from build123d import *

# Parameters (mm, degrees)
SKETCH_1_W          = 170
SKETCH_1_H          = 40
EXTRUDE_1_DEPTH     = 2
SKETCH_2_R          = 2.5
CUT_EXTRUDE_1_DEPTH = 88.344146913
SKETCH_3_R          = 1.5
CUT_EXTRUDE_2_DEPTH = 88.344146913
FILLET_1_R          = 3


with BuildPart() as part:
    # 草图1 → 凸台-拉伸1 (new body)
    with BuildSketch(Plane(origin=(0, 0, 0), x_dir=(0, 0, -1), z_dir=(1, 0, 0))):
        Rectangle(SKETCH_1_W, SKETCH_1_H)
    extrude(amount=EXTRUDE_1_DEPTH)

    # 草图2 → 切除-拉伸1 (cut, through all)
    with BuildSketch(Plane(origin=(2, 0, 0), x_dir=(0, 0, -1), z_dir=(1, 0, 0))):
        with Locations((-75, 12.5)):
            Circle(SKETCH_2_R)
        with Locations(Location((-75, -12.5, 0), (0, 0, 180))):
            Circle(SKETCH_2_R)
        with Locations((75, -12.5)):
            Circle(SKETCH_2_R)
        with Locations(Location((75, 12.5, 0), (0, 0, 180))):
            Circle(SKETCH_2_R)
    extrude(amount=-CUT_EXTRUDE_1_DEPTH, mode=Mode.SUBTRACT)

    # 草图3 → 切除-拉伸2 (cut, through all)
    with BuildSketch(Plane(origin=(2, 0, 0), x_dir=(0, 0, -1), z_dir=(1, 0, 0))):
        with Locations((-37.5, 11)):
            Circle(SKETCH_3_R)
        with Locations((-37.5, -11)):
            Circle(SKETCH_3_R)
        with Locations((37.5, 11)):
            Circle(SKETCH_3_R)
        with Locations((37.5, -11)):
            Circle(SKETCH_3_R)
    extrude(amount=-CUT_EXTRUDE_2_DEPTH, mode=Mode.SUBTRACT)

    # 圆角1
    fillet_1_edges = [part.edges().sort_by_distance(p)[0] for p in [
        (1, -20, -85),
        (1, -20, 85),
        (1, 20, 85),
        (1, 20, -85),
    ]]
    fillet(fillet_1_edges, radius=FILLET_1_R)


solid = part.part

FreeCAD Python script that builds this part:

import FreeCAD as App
import Part
import Sketcher
Q = App.Units.Quantity


def edges_at(feature, points):
    """Names of the edges that pass closest to the given points."""
    edges = feature.Shape.Edges
    near = lambda p: min(range(len(edges)), key=lambda i: edges[i].distToShape(Part.Vertex(*p))[0])
    return sorted({f"Edge{near(p) + 1}" for p in points})


def add_polygon(sketch, points):
    """Adds a closed chain of lines whose ends are joined by coincident constraints."""
    first, n = sketch.GeometryCount, len(points)
    for a, b in zip(points, points[1:] + points[:1]):
        sketch.addGeometry(Part.LineSegment(App.Vector(*a, 0), App.Vector(*b, 0)), False)
    for i in range(n):
        sketch.addConstraint(Sketcher.Constraint("Coincident", first + i, 2, first + (i + 1) % n, 1))

doc = App.newDocument("Part")
body = doc.addObject("PartDesign::Body", "Body")

# Sketch on YZ plane
sketch1 = body.newObject("Sketcher::SketchObject", "Sketch")
sketch1.AttachmentSupport = (doc.getObject("YZ_Plane"), [""])
sketch1.MapMode = "FlatFace"
add_polygon(sketch1, [(20, 85), (-20, 85), (-20, -85), (20, -85)])  # lines 0-3
sketch1.addConstraint([
    Sketcher.Constraint("Horizontal", 0),
    Sketcher.Constraint("Vertical", 1),
    Sketcher.Constraint("Horizontal", 2),
    Sketcher.Constraint("Vertical", 3),
    Sketcher.Constraint("Symmetric", 0, 2, 2, 2, -1, 1),
    Sketcher.Constraint("DistanceX", 0, 2, 0, 1, Q("40 mm")),
    Sketcher.Constraint("DistanceY", 1, 2, 1, 1, Q("170 mm")),
])
pad1 = body.newObject("PartDesign::Pad", "Pad")
pad1.Profile = sketch1
pad1.Length = 2

# Sketch on YZ plane
sketch2 = body.newObject("Sketcher::SketchObject", "Sketch001")
sketch2.AttachmentSupport = (doc.getObject("YZ_Plane"), [""])
sketch2.MapMode = "FlatFace"
sketch2.AttachmentOffset = App.Placement(App.Vector(0, 0, 2), App.Rotation())
sketch2.addGeometry([
    Part.Circle(App.Vector(12.5, 75, 0), App.Vector(0, 0, 1), 2.5),
    Part.Circle(App.Vector(-12.5, 75, 0), App.Vector(0, 0, 1), 2.5),
    Part.Circle(App.Vector(-12.5, -75, 0), App.Vector(0, 0, 1), 2.5),
    Part.Circle(App.Vector(12.5, -75, 0), App.Vector(0, 0, 1), 2.5),
], False)
sketch2.addConstraint([
    Sketcher.Constraint("Equal", 0, 1),
    Sketcher.Constraint("Equal", 1, 2),
    Sketcher.Constraint("Equal", 2, 3),
    Sketcher.Constraint("Symmetric", 0, 3, 2, 3, -1, 1),
    Sketcher.Constraint("Symmetric", 1, 3, 3, 3, -1, 1),
    Sketcher.Constraint("Symmetric", 0, 3, 1, 3, -2),
    Sketcher.Constraint("Diameter", 0, Q("5 mm")),
    Sketcher.Constraint("DistanceY", -1, 1, 0, 3, Q("75 mm")),
    Sketcher.Constraint("DistanceX", 1, 3, 0, 3, Q("25 mm")),
])
pocket1 = body.newObject("PartDesign::Pocket", "Pocket")
pocket1.Profile = sketch2
pocket1.Type = "ThroughAll"

# Sketch on YZ plane
sketch3 = body.newObject("Sketcher::SketchObject", "Sketch002")
sketch3.AttachmentSupport = (doc.getObject("YZ_Plane"), [""])
sketch3.MapMode = "FlatFace"
sketch3.AttachmentOffset = App.Placement(App.Vector(0, 0, 2), App.Rotation())
sketch3.addGeometry([
    Part.Circle(App.Vector(11, 37.5, 0), App.Vector(0, 0, 1), 1.5),
    Part.Circle(App.Vector(-11, 37.5, 0), App.Vector(0, 0, 1), 1.5),
    Part.Circle(App.Vector(11, -37.5, 0), App.Vector(0, 0, 1), 1.5),
    Part.Circle(App.Vector(-11, -37.5, 0), App.Vector(0, 0, 1), 1.5),
], False)
sketch3.addConstraint([
    Sketcher.Constraint("Equal", 0, 1),
    Sketcher.Constraint("Equal", 1, 2),
    Sketcher.Constraint("Equal", 2, 3),
    Sketcher.Constraint("Symmetric", 1, 3, 2, 3, -1, 1),
    Sketcher.Constraint("Symmetric", 0, 3, 3, 3, -1, 1),
    Sketcher.Constraint("Symmetric", 0, 3, 1, 3, -2),
    Sketcher.Constraint("Diameter", 0, Q("3 mm")),
    Sketcher.Constraint("DistanceX", -1, 1, 0, 3, Q("11 mm")),
    Sketcher.Constraint("DistanceY", 2, 3, 0, 3, Q("75 mm")),
])
pocket2 = body.newObject("PartDesign::Pocket", "Pocket001")
pocket2.Profile = sketch3
pocket2.Type = "ThroughAll"
doc.recompute()

fillet = body.newObject("PartDesign::Fillet", "Fillet")
fillet.Base = (pocket2, edges_at(pocket2, [
    (1, -20, -85),
    (1, -20, 85),
    (1, 20, 85),
    (1, 20, -85),
]))
fillet.Radius = 3

doc.recompute()
